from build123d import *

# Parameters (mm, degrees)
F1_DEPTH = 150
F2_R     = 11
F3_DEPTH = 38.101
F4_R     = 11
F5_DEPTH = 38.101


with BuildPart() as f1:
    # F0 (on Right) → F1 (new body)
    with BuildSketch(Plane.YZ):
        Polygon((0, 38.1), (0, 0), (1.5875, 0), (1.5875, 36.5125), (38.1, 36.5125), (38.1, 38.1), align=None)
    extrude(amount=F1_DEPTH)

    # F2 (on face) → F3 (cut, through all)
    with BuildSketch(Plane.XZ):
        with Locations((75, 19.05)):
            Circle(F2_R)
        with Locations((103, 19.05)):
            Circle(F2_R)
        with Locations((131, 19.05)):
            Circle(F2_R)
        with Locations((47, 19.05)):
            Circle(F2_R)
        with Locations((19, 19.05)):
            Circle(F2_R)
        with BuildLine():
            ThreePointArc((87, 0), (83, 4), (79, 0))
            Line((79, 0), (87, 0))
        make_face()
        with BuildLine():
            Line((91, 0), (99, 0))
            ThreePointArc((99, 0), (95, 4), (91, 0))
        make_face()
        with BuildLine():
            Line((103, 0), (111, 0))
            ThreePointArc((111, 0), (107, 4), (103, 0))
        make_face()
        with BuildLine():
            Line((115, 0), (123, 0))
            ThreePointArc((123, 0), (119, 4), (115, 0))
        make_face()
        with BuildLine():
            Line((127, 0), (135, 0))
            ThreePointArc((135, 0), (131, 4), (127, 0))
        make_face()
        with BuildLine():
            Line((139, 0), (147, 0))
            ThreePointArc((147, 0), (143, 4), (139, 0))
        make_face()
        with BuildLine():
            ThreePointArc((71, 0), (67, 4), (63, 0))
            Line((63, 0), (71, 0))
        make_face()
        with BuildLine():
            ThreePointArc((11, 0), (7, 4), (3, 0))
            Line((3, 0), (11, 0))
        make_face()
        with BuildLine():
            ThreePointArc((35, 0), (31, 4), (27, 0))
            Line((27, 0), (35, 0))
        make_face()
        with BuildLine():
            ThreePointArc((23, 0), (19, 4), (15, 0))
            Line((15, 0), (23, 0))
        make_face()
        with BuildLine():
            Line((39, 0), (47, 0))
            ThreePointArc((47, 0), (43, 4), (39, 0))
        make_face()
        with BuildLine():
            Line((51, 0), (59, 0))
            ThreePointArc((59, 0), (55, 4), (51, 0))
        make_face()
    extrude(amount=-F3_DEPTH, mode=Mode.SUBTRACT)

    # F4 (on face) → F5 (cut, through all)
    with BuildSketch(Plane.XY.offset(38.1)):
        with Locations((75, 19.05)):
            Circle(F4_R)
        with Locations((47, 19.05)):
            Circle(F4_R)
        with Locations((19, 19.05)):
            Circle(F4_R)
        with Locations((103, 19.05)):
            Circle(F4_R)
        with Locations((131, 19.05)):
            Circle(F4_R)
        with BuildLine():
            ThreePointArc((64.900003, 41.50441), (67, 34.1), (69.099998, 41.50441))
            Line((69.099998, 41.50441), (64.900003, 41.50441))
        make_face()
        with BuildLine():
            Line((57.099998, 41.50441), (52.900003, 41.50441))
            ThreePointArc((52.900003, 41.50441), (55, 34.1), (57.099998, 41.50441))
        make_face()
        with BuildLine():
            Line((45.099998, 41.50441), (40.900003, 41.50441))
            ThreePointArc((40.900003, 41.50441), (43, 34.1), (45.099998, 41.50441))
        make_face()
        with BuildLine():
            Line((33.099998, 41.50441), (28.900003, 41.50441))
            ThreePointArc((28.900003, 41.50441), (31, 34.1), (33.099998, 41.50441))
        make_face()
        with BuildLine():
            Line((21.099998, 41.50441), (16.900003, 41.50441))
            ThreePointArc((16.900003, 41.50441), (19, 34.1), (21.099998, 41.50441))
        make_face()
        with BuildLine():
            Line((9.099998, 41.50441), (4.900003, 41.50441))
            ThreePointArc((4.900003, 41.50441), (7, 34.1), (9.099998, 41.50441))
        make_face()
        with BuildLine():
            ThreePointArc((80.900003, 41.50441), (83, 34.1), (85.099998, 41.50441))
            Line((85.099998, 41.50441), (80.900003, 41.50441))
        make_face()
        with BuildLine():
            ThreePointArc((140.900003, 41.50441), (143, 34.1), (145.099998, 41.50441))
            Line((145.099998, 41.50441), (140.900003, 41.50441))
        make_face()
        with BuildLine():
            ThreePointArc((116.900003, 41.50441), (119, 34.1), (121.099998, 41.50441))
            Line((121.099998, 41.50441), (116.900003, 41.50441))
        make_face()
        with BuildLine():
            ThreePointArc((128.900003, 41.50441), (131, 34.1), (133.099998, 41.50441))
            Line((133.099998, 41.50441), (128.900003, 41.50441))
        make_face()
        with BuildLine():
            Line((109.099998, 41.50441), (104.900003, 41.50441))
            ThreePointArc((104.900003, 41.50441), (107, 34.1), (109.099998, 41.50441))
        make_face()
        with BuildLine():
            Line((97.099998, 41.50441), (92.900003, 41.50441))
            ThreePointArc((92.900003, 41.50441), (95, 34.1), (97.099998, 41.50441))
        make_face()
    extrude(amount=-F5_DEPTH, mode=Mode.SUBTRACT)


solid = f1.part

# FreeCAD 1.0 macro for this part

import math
import FreeCAD as App
import Part
import Sketcher
from FreeCAD import Vector

doc = App.newDocument("Part")
body = doc.addObject("PartDesign::Body", "Body")

sketch1 = body.newObject("Sketcher::SketchObject", "Sketch")
sketch1.AttachmentSupport = (doc.getObject("YZ_Plane"), [""])
sketch1.MapMode = "FlatFace"
sketch1.addGeometry([
    Part.LineSegment(Vector(0, 38.1, 0), Vector(0, 0, 0)),
    Part.LineSegment(Vector(0, 0, 0), Vector(1.6, 0, 0)),
    Part.LineSegment(Vector(1.6, 0, 0), Vector(1.6, 36.5, 0)),
    Part.LineSegment(Vector(1.6, 36.5, 0), Vector(38.1, 36.5, 0)),
    Part.LineSegment(Vector(38.1, 36.5, 0), Vector(38.1, 38.1, 0)),
    Part.LineSegment(Vector(38.1, 38.1, 0), Vector(0, 38.1, 0)),
], False)
sketch1.addConstraint([
    Sketcher.Constraint("Coincident", 0, 2, 1, 1),
    Sketcher.Constraint("Coincident", 1, 2, 2, 1),
    Sketcher.Constraint("Coincident", 2, 2, 3, 1),
    Sketcher.Constraint("Coincident", 3, 2, 4, 1),
    Sketcher.Constraint("Coincident", 4, 2, 5, 1),
    Sketcher.Constraint("Coincident", 5, 2, 0, 1),
    Sketcher.Constraint("Vertical", 0),
    Sketcher.Constraint("Horizontal", 1),
    Sketcher.Constraint("Vertical", 2),
    Sketcher.Constraint("Horizontal", 3),
    Sketcher.Constraint("Vertical", 4),
    Sketcher.Constraint("Horizontal", 5),
    Sketcher.Constraint("Coincident", 0, 2, -1, 1),
    Sketcher.Constraint("Equal", 5, 0),
    Sketcher.Constraint("Equal", 3, 2),
    Sketcher.Constraint("DistanceX", 5, 2, 5, 1, 38.1),
    Sketcher.Constraint("DistanceX", 1, 1, 1, 2, 1.5875),
])
pad1 = body.newObject("PartDesign::Pad", "Pad")
pad1.Profile = sketch1
pad1.Length = 150

sketch2 = body.newObject("Sketcher::SketchObject", "Sketch001")
sketch2.AttachmentSupport = (doc.getObject("XZ_Plane"), [""])
sketch2.MapMode = "FlatFace"
sketch2.addGeometry([
    Part.Circle(Vector(75, 19.1, 0), Vector(0, 0, 1), 11),
    Part.Circle(Vector(103, 19.1, 0), Vector(0, 0, 1), 11),
    Part.Circle(Vector(131, 19.1, 0), Vector(0, 0, 1), 11),
    Part.Circle(Vector(47, 19.1, 0), Vector(0, 0, 1), 11),
    Part.Circle(Vector(19, 19.1, 0), Vector(0, 0, 1), 11),
    Part.ArcOfCircle(Part.Circle(Vector(83, 0, 0), Vector(0, 0, 1), 4), math.radians(0), math.radians(180)),
    Part.LineSegment(Vector(79, 0, 0), Vector(87, 0, 0)),
    Part.LineSegment(Vector(91, 0, 0), Vector(99, 0, 0)),
    Part.ArcOfCircle(Part.Circle(Vector(95, 0, 0), Vector(0, 0, 1), 4), math.radians(0), math.radians(180)),
    Part.LineSegment(Vector(103, 0, 0), Vector(111, 0, 0)),
    Part.ArcOfCircle(Part.Circle(Vector(107, 0, 0), Vector(0, 0, 1), 4), math.radians(0), math.radians(180)),
    Part.LineSegment(Vector(115, 0, 0), Vector(123, 0, 0)),
    Part.ArcOfCircle(Part.Circle(Vector(119, 0, 0), Vector(0, 0, 1), 4), math.radians(0), math.radians(180)),
    Part.LineSegment(Vector(127, 0, 0), Vector(135, 0, 0)),
    Part.ArcOfCircle(Part.Circle(Vector(131, 0, 0), Vector(0, 0, 1), 4), math.radians(0), math.radians(180)),
    Part.LineSegment(Vector(139, 0, 0), Vector(147, 0, 0)),
    Part.ArcOfCircle(Part.Circle(Vector(143, 0, 0), Vector(0, 0, 1), 4), math.radians(0), math.radians(180)),
    Part.ArcOfCircle(Part.Circle(Vector(67, 0, 0), Vector(0, 0, 1), 4), math.radians(0), math.radians(180)),
    Part.LineSegment(Vector(63, 0, 0), Vector(71, 0, 0)),
    Part.ArcOfCircle(Part.Circle(Vector(7, 0, 0), Vector(0, 0, 1), 4), math.radians(0), math.radians(180)),
    Part.LineSegment(Vector(3, 0, 0), Vector(11, 0, 0)),
    Part.ArcOfCircle(Part.Circle(Vector(31, 0, 0), Vector(0, 0, 1), 4), math.radians(0), math.radians(180)),
    Part.LineSegment(Vector(27, 0, 0), Vector(35, 0, 0)),
    Part.ArcOfCircle(Part.Circle(Vector(19, 0, 0), Vector(0, 0, 1), 4), math.radians(0), math.radians(180)),
    Part.LineSegment(Vector(15, 0, 0), Vector(23, 0, 0)),
    Part.LineSegment(Vector(39, 0, 0), Vector(47, 0, 0)),
    Part.ArcOfCircle(Part.Circle(Vector(43, 0, 0), Vector(0, 0, 1), 4), math.radians(0), math.radians(180)),
    Part.LineSegment(Vector(51, 0, 0), Vector(59, 0, 0)),
    Part.ArcOfCircle(Part.Circle(Vector(55, 0, 0), Vector(0, 0, 1), 4), math.radians(0), math.radians(180)),
], False)
sketch2.addConstraint([
    Sketcher.Constraint("Coincident", 5, 1, 6, 2),
    Sketcher.Constraint("Coincident", 6, 1, 5, 2),
    Sketcher.Constraint("Coincident", 7, 1, 8, 2),
    Sketcher.Constraint("Coincident", 8, 1, 7, 2),
    Sketcher.Constraint("Coincident", 9, 1, 10, 2),
    Sketcher.Constraint("Coincident", 10, 1, 9, 2),
    Sketcher.Constraint("Coincident", 11, 1, 12, 2),
    Sketcher.Constraint("Coincident", 12, 1, 11, 2),
    Sketcher.Constraint("Coincident", 13, 1, 14, 2),
    Sketcher.Constraint("Coincident", 14, 1, 13, 2),
    Sketcher.Constraint("Coincident", 15, 1, 16, 2),
    Sketcher.Constraint("Coincident", 16, 1, 15, 2),
    Sketcher.Constraint("Coincident", 17, 1, 18, 2),
    Sketcher.Constraint("Coincident", 18, 1, 17, 2),
    Sketcher.Constraint("Coincident", 19, 1, 20, 2),
    Sketcher.Constraint("Coincident", 20, 1, 19, 2),
    Sketcher.Constraint("Coincident", 21, 1, 22, 2),
    Sketcher.Constraint("Coincident", 22, 1, 21, 2),
    Sketcher.Constraint("Coincident", 23, 1, 24, 2),
    Sketcher.Constraint("Coincident", 24, 1, 23, 2),
    Sketcher.Constraint("Coincident", 25, 1, 26, 2),
    Sketcher.Constraint("Coincident", 26, 1, 25, 2),
    Sketcher.Constraint("Coincident", 27, 1, 28, 2),
    Sketcher.Constraint("Coincident", 28, 1, 27, 2),
    Sketcher.Constraint("Horizontal", 6),
    Sketcher.Constraint("Horizontal", 7),
    Sketcher.Constraint("Horizontal", 9),
    Sketcher.Constraint("Horizontal", 11),
    Sketcher.Constraint("Horizontal", 13),
    Sketcher.Constraint("Horizontal", 15),
    Sketcher.Constraint("Horizontal", 18),
    Sketcher.Constraint("Horizontal", 20),
    Sketcher.Constraint("Horizontal", 22),
    Sketcher.Constraint("Horizontal", 24),
    Sketcher.Constraint("Horizontal", 25),
    Sketcher.Constraint("Horizontal", 27),
    Sketcher.Constraint("Equal", 0, 1),
    Sketcher.Constraint("Equal", 1, 2),
    Sketcher.Constraint("Equal", 2, 3),
    Sketcher.Constraint("Equal", 3, 4),
    Sketcher.Constraint("Equal", 5, 8),
    Sketcher.Constraint("Equal", 8, 10),
    Sketcher.Constraint("Equal", 10, 12),
    Sketcher.Constraint("Equal", 12, 14),
    Sketcher.Constraint("Equal", 14, 16),
    Sketcher.Constraint("Equal", 16, 17),
    Sketcher.Constraint("Equal", 17, 19),
    Sketcher.Constraint("Equal", 19, 21),
    Sketcher.Constraint("Equal", 21, 23),
    Sketcher.Constraint("Equal", 23, 26),
    Sketcher.Constraint("Equal", 26, 28),
    Sketcher.Constraint("PointOnObject", 5, 3, -1),
    Sketcher.Constraint("PointOnObject", 8, 3, -1),
    Sketcher.Constraint("PointOnObject", 10, 3, -1),
    Sketcher.Constraint("PointOnObject", 12, 3, -1),
    Sketcher.Constraint("PointOnObject", 14, 3, -1),
    Sketcher.Constraint("PointOnObject", 16, 3, -1),
    Sketcher.Constraint("PointOnObject", 17, 3, -1),
    Sketcher.Constraint("PointOnObject", 19, 3, -1),
    Sketcher.Constraint("PointOnObject", 21, 3, -1),
    Sketcher.Constraint("PointOnObject", 23, 3, -1),
    Sketcher.Constraint("PointOnObject", 26, 3, -1),
    Sketcher.Constraint("PointOnObject", 28, 3, -1),
    Sketcher.Constraint("PointOnObject", 5, 1, -1),
    Sketcher.Constraint("PointOnObject", 7, 1, -1),
    Sketcher.Constraint("PointOnObject", 9, 1, -1),
    Sketcher.Constraint("PointOnObject", 11, 1, -1),
    Sketcher.Constraint("PointOnObject", 13, 1, -1),
    Sketcher.Constraint("PointOnObject", 15, 1, -1),
    Sketcher.Constraint("PointOnObject", 17, 1, -1),
    Sketcher.Constraint("PointOnObject", 19, 1, -1),
    Sketcher.Constraint("PointOnObject", 21, 1, -1),
    Sketcher.Constraint("PointOnObject", 23, 1, -1),
    Sketcher.Constraint("PointOnObject", 25, 1, -1),
    Sketcher.Constraint("PointOnObject", 27, 1, -1),
    Sketcher.Constraint("Horizontal", 0, 3, 1, 3),
    Sketcher.Constraint("Horizontal", 1, 3, 2, 3),
    Sketcher.Constraint("Horizontal", 2, 3, 3, 3),
    Sketcher.Constraint("Horizontal", 3, 3, 4, 3),
    Sketcher.Constraint("Vertical", 2, 3, 14, 3),
    Sketcher.Constraint("Vertical", 4, 3, 23, 3),
    Sketcher.Constraint("Vertical", 1, 3, 9, 1),
    Sketcher.Constraint("Vertical", 3, 3, 26, 1),
    Sketcher.Constraint("Diameter", 0, 22.0),
    Sketcher.Constraint("Radius", 5, 4.0),
    Sketcher.Constraint("DistanceX", -1, 1, 0, 3, 75.0),
    Sketcher.Constraint("DistanceX", -1, 1, 1, 3, 103.0),
    Sketcher.Constraint("DistanceX", -1, 1, 2, 3, 131.0),
    Sketcher.Constraint("DistanceX", -1, 1, 3, 3, 47.0),
    Sketcher.Constraint("DistanceX", -1, 1, 4, 3, 19.0),
    Sketcher.Constraint("DistanceX", -1, 1, 5, 3, 83.0),
    Sketcher.Constraint("DistanceX", -1, 1, 8, 3, 95.0),
    Sketcher.Constraint("DistanceX", -1, 1, 12, 3, 119.0),
    Sketcher.Constraint("DistanceX", -1, 1, 16, 3, 143.0),
    Sketcher.Constraint("DistanceX", -1, 1, 17, 3, 67.0),
    Sketcher.Constraint("DistanceX", -1, 1, 19, 3, 7.0),
    Sketcher.Constraint("DistanceX", -1, 1, 21, 3, 31.0),
    Sketcher.Constraint("DistanceX", -1, 1, 28, 3, 55.0),
    Sketcher.Constraint("DistanceY", -1, 1, 0, 3, 19.05),
])
pocket1 = body.newObject("PartDesign::Pocket", "Pocket")
pocket1.Profile = sketch2
pocket1.Type = "ThroughAll"

sketch3 = body.newObject("Sketcher::SketchObject", "Sketch002")
sketch3.AttachmentSupport = (doc.getObject("XY_Plane"), [""])
sketch3.MapMode = "FlatFace"
sketch3.AttachmentOffset = App.Placement(Vector(0, 0, 38.1), App.Rotation())
sketch3.addGeometry([
    Part.Circle(Vector(75, 19.1, 0), Vector(0, 0, 1), 11),
    Part.Circle(Vector(47, 19.1, 0), Vector(0, 0, 1), 11),
    Part.Circle(Vector(19, 19.1, 0), Vector(0, 0, 1), 11),
    Part.Circle(Vector(103, 19.1, 0), Vector(0, 0, 1), 11),
    Part.Circle(Vector(131, 19.1, 0), Vector(0, 0, 1), 11),
    Part.ArcOfCircle(Part.Circle(Vector(67, 38.1, 0), Vector(0, 0, 1), 4), math.radians(122), math.radians(418)),
    Part.LineSegment(Vector(69.1, 41.5, 0), Vector(64.9, 41.5, 0)),
    Part.LineSegment(Vector(57.1, 41.5, 0), Vector(52.9, 41.5, 0)),
    Part.ArcOfCircle(Part.Circle(Vector(55, 38.1, 0), Vector(0, 0, 1), 4), math.radians(122), math.radians(418)),
    Part.LineSegment(Vector(45.1, 41.5, 0), Vector(40.9, 41.5, 0)),
    Part.ArcOfCircle(Part.Circle(Vector(43, 38.1, 0), Vector(0, 0, 1), 4), math.radians(122), math.radians(418)),
    Part.LineSegment(Vector(33.1, 41.5, 0), Vector(28.9, 41.5, 0)),
    Part.ArcOfCircle(Part.Circle(Vector(31, 38.1, 0), Vector(0, 0, 1), 4), math.radians(122), math.radians(418)),
    Part.LineSegment(Vector(21.1, 41.5, 0), Vector(16.9, 41.5, 0)),
    Part.ArcOfCircle(Part.Circle(Vector(19, 38.1, 0), Vector(0, 0, 1), 4), math.radians(122), math.radians(418)),
    Part.LineSegment(Vector(9.1, 41.5, 0), Vector(4.9, 41.5, 0)),
    Part.ArcOfCircle(Part.Circle(Vector(7, 38.1, 0), Vector(0, 0, 1), 4), math.radians(122), math.radians(418)),
    Part.ArcOfCircle(Part.Circle(Vector(83, 38.1, 0), Vector(0, 0, 1), 4), math.radians(122), math.radians(418)),
    Part.LineSegment(Vector(85.1, 41.5, 0), Vector(80.9, 41.5, 0)),
    Part.ArcOfCircle(Part.Circle(Vector(143, 38.1, 0), Vector(0, 0, 1), 4), math.radians(122), math.radians(418)),
    Part.LineSegment(Vector(145.1, 41.5, 0), Vector(140.9, 41.5, 0)),
    Part.ArcOfCircle(Part.Circle(Vector(119, 38.1, 0), Vector(0, 0, 1), 4), math.radians(122), math.radians(418)),
    Part.LineSegment(Vector(121.1, 41.5, 0), Vector(116.9, 41.5, 0)),
    Part.ArcOfCircle(Part.Circle(Vector(131, 38.1, 0), Vector(0, 0, 1), 4), math.radians(122), math.radians(418)),
    Part.LineSegment(Vector(133.1, 41.5, 0), Vector(128.9, 41.5, 0)),
    Part.LineSegment(Vector(109.1, 41.5, 0), Vector(104.9, 41.5, 0)),
    Part.ArcOfCircle(Part.Circle(Vector(107, 38.1, 0), Vector(0, 0, 1), 4), math.radians(122), math.radians(418)),
    Part.LineSegment(Vector(97.1, 41.5, 0), Vector(92.9, 41.5, 0)),
    Part.ArcOfCircle(Part.Circle(Vector(95, 38.1, 0), Vector(0, 0, 1), 4), math.radians(122), math.radians(418)),
], False)
sketch3.addConstraint([
    Sketcher.Constraint("Coincident", 5, 1, 6, 2),
    Sketcher.Constraint("Coincident", 6, 1, 5, 2),
    Sketcher.Constraint("Coincident", 7, 1, 8, 2),
    Sketcher.Constraint("Coincident", 8, 1, 7, 2),
    Sketcher.Constraint("Coincident", 9, 1, 10, 2),
    Sketcher.Constraint("Coincident", 10, 1, 9, 2),
    Sketcher.Constraint("Coincident", 11, 1, 12, 2),
    Sketcher.Constraint("Coincident", 12, 1, 11, 2),
    Sketcher.Constraint("Coincident", 13, 1, 14, 2),
    Sketcher.Constraint("Coincident", 14, 1, 13, 2),
    Sketcher.Constraint("Coincident", 15, 1, 16, 2),
    Sketcher.Constraint("Coincident", 16, 1, 15, 2),
    Sketcher.Constraint("Coincident", 17, 1, 18, 2),
    Sketcher.Constraint("Coincident", 18, 1, 17, 2),
    Sketcher.Constraint("Coincident", 19, 1, 20, 2),
    Sketcher.Constraint("Coincident", 20, 1, 19, 2),
    Sketcher.Constraint("Coincident", 21, 1, 22, 2),
    Sketcher.Constraint("Coincident", 22, 1, 21, 2),
    Sketcher.Constraint("Coincident", 23, 1, 24, 2),
    Sketcher.Constraint("Coincident", 24, 1, 23, 2),
    Sketcher.Constraint("Coincident", 25, 1, 26, 2),
    Sketcher.Constraint("Coincident", 26, 1, 25, 2),
    Sketcher.Constraint("Coincident", 27, 1, 28, 2),
    Sketcher.Constraint("Coincident", 28, 1, 27, 2),
    Sketcher.Constraint("Horizontal", 6),
    Sketcher.Constraint("Horizontal", 7),
    Sketcher.Constraint("Horizontal", 9),
    Sketcher.Constraint("Horizontal", 11),
    Sketcher.Constraint("Horizontal", 13),
    Sketcher.Constraint("Horizontal", 15),
    Sketcher.Constraint("Horizontal", 18),
    Sketcher.Constraint("Horizontal", 20),
    Sketcher.Constraint("Horizontal", 22),
    Sketcher.Constraint("Horizontal", 24),
    Sketcher.Constraint("Horizontal", 25),
    Sketcher.Constraint("Horizontal", 27),
    Sketcher.Constraint("Equal", 0, 1),
    Sketcher.Constraint("Equal", 1, 2),
    Sketcher.Constraint("Equal", 2, 3),
    Sketcher.Constraint("Equal", 3, 4),
    Sketcher.Constraint("Equal", 5, 8),
    Sketcher.Constraint("Equal", 8, 10),
    Sketcher.Constraint("Equal", 10, 12),
    Sketcher.Constraint("Equal", 12, 14),
    Sketcher.Constraint("Equal", 14, 16),
    Sketcher.Constraint("Equal", 16, 17),
    Sketcher.Constraint("Equal", 17, 19),
    Sketcher.Constraint("Equal", 19, 21),
    Sketcher.Constraint("Equal", 21, 23),
    Sketcher.Constraint("Equal", 23, 26),
    Sketcher.Constraint("Equal", 26, 28),
    Sketcher.Constraint("Horizontal", 0, 3, 1, 3),
    Sketcher.Constraint("Horizontal", 1, 3, 2, 3),
    Sketcher.Constraint("Horizontal", 2, 3, 3, 3),
    Sketcher.Constraint("Horizontal", 3, 3, 4, 3),
    Sketcher.Constraint("Horizontal", 5, 3, 8, 3),
    Sketcher.Constraint("Horizontal", 8, 3, 10, 3),
    Sketcher.Constraint("Horizontal", 10, 3, 12, 3),
    Sketcher.Constraint("Horizontal", 12, 3, 14, 3),
    Sketcher.Constraint("Horizontal", 14, 3, 16, 3),
    Sketcher.Constraint("Horizontal", 16, 3, 17, 3),
    Sketcher.Constraint("Horizontal", 17, 3, 19, 3),
    Sketcher.Constraint("Horizontal", 19, 3, 21, 3),
    Sketcher.Constraint("Horizontal", 21, 3, 23, 3),
    Sketcher.Constraint("Horizontal", 23, 3, 26, 3),
    Sketcher.Constraint("Horizontal", 26, 3, 28, 3),
    Sketcher.Constraint("Horizontal", 6, 1, 7, 1),
    Sketcher.Constraint("Horizontal", 8, 1, 9, 1),
    Sketcher.Constraint("Horizontal", 10, 1, 11, 1),
    Sketcher.Constraint("Horizontal", 12, 1, 13, 1),
    Sketcher.Constraint("Horizontal", 14, 1, 15, 1),
    Sketcher.Constraint("Horizontal", 16, 1, 17, 1),
    Sketcher.Constraint("Horizontal", 18, 1, 19, 1),
    Sketcher.Constraint("Horizontal", 20, 1, 21, 1),
    Sketcher.Constraint("Horizontal", 22, 1, 23, 1),
    Sketcher.Constraint("Horizontal", 24, 1, 25, 1),
    Sketcher.Constraint("Horizontal", 26, 1, 27, 1),
    Sketcher.Constraint("Vertical", 2, 3, 14, 3),
    Sketcher.Constraint("Vertical", 4, 3, 23, 3),
    Sketcher.Constraint("Diameter", 0, 22.0),
    Sketcher.Constraint("Radius", 5, 4.0),
    Sketcher.Constraint("DistanceX", -1, 1, 0, 3, 75.0),
    Sketcher.Constraint("DistanceX", -1, 1, 1, 3, 47.0),
    Sketcher.Constraint("DistanceX", -1, 1, 2, 3, 19.0),
    Sketcher.Constraint("DistanceX", -1, 1, 3, 3, 103.0),
    Sketcher.Constraint("DistanceX", -1, 1, 4, 3, 131.0),
    Sketcher.Constraint("DistanceX", -1, 1, 5, 3, 67.0),
    Sketcher.Constraint("DistanceX", -1, 1, 8, 3, 55.0),
    Sketcher.Constraint("DistanceX", -1, 1, 10, 3, 43.0),
    Sketcher.Constraint("DistanceX", -1, 1, 12, 3, 31.0),
    Sketcher.Constraint("DistanceX", -1, 1, 16, 3, 7.0),
    Sketcher.Constraint("DistanceX", -1, 1, 17, 3, 83.0),
    Sketcher.Constraint("DistanceX", -1, 1, 19, 3, 143.0),
    Sketcher.Constraint("DistanceX", -1, 1, 21, 3, 119.0),
    Sketcher.Constraint("DistanceX", -1, 1, 26, 3, 107.0),
    Sketcher.Constraint("DistanceX", -1, 1, 28, 3, 95.0),
    Sketcher.Constraint("DistanceY", -1, 1, 5, 3, 38.1),
    Sketcher.Constraint("DistanceX", -1, 1, 6, 1, 69.099998),
    Sketcher.Constraint("DistanceY", -1, 1, 0, 3, 19.05),
])
pocket2 = body.newObject("PartDesign::Pocket", "Pocket001")
pocket2.Profile = sketch3
pocket2.Type = "ThroughAll"

doc.recompute()
